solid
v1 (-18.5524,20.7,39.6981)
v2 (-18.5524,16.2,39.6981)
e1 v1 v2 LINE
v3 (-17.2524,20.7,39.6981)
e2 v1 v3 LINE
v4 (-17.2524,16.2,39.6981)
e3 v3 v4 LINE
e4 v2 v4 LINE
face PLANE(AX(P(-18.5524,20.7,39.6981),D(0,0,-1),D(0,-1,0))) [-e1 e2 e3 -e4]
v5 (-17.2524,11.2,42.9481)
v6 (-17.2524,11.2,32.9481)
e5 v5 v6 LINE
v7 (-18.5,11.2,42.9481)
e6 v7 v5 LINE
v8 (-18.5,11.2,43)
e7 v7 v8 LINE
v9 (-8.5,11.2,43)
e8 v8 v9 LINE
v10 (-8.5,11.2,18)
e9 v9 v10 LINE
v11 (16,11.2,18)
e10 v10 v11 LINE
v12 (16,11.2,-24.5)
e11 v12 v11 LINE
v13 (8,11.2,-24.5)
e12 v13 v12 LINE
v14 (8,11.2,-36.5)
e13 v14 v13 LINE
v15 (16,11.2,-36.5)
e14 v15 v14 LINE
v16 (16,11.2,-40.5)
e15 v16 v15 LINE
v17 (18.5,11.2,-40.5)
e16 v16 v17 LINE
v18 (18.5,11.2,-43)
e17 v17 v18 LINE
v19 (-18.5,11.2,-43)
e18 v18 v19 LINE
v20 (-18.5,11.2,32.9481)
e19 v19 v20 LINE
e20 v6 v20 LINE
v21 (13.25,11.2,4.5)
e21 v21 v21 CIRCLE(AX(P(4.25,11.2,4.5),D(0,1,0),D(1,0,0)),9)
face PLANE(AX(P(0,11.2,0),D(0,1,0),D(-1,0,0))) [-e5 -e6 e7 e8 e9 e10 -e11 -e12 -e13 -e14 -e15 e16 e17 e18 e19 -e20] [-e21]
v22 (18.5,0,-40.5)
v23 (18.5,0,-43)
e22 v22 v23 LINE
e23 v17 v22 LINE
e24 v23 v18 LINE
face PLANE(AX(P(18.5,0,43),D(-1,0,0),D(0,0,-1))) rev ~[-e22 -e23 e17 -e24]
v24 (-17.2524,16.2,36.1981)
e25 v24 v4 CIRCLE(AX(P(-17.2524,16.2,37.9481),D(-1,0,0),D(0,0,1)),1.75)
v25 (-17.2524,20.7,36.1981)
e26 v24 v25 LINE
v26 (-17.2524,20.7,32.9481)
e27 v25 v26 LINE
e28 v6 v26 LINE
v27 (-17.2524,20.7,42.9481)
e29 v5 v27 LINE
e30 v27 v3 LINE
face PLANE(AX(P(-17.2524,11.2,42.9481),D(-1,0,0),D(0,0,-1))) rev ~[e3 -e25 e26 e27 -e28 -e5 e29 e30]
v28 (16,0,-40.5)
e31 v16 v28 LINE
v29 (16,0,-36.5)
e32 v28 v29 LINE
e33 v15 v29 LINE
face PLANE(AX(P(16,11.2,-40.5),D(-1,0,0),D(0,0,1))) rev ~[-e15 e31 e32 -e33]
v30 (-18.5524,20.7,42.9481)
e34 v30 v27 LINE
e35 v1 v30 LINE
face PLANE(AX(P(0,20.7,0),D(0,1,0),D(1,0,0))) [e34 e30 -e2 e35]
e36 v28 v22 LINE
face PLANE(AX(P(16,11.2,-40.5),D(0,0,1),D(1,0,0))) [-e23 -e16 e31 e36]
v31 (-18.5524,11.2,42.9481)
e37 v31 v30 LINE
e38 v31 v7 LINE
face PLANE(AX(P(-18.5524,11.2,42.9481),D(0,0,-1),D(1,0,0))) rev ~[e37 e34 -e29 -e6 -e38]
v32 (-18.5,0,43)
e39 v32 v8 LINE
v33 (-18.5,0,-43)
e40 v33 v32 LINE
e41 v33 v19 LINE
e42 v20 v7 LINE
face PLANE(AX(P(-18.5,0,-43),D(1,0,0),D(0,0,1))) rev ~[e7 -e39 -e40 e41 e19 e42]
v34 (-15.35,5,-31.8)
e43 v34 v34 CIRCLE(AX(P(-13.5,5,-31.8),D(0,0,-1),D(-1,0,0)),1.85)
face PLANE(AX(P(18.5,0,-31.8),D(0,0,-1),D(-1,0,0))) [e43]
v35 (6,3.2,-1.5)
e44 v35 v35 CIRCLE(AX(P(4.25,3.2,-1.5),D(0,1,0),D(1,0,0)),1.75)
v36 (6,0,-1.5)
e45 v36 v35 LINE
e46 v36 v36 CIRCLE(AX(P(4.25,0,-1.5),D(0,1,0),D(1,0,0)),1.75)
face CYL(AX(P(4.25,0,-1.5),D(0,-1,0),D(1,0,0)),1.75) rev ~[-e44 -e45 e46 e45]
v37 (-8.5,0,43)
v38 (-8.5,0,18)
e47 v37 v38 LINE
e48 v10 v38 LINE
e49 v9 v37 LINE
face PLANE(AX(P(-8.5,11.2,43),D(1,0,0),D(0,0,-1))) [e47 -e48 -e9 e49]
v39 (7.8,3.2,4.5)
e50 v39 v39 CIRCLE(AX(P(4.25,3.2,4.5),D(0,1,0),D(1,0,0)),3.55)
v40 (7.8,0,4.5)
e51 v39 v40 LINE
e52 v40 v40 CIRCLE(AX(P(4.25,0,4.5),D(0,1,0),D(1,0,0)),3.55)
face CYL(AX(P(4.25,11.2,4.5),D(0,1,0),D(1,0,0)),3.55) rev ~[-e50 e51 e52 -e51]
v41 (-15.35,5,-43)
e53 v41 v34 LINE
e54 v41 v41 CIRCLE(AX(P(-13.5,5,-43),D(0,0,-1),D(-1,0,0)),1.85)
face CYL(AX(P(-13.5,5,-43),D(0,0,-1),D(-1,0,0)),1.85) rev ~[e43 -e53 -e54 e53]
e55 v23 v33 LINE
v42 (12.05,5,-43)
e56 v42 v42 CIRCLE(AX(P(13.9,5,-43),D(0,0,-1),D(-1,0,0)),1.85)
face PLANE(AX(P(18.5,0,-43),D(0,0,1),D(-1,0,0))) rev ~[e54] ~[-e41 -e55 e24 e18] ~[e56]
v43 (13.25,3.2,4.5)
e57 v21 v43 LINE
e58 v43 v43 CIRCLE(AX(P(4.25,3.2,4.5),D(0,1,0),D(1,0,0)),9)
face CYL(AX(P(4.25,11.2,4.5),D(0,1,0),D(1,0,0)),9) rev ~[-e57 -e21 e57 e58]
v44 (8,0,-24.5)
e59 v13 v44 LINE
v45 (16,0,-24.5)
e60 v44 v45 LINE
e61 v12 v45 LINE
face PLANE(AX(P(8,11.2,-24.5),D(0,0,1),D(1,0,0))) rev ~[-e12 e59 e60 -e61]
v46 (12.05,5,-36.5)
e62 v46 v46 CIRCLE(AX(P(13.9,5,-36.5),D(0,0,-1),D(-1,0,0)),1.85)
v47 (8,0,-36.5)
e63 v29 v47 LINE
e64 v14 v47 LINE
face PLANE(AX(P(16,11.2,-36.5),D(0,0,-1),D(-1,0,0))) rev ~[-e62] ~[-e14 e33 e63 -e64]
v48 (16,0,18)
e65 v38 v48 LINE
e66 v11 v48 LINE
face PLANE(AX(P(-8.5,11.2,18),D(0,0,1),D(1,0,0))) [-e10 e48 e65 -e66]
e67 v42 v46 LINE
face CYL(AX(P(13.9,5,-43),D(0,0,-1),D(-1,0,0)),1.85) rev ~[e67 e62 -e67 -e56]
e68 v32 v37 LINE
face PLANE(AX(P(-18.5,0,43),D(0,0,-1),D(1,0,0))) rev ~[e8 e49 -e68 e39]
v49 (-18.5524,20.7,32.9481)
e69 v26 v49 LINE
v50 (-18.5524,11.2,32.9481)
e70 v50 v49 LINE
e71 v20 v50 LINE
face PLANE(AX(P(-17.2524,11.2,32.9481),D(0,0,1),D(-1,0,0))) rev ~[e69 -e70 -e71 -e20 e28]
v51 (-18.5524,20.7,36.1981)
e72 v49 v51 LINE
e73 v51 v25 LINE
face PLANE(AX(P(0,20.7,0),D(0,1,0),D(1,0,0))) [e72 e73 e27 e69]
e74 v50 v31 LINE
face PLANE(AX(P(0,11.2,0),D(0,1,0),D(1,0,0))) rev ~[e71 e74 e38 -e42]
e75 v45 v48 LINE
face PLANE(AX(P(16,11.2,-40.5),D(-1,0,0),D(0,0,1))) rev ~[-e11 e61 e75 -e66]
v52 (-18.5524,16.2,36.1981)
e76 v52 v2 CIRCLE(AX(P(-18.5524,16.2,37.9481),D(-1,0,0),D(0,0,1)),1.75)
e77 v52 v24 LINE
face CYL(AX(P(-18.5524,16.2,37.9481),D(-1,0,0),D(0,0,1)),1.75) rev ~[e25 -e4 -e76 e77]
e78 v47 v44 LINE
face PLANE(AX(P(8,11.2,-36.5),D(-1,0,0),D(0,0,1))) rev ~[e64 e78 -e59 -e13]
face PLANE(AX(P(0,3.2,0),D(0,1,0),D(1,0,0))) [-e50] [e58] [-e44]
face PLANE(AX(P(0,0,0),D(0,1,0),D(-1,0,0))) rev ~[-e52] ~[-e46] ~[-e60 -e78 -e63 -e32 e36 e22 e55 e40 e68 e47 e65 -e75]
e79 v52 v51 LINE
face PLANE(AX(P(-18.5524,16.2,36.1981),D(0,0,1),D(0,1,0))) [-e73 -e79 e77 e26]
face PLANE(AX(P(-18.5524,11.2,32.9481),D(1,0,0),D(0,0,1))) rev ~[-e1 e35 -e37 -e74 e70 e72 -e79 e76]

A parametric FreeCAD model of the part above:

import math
import FreeCAD as App
import Part
import Sketcher
Q = App.Units.Quantity


def add_polygon(sketch, points):
    """Adds a closed chain of lines whose ends are joined by coincident constraints."""
    first, n = sketch.GeometryCount, len(points)
    for a, b in zip(points, points[1:] + points[:1]):
        sketch.addGeometry(Part.LineSegment(App.Vector(*a, 0), App.Vector(*b, 0)), False)
    for i in range(n):
        sketch.addConstraint(Sketcher.Constraint("Coincident", first + i, 2, first + (i + 1) % n, 1))

doc = App.newDocument("Part")
body = doc.addObject("PartDesign::Body", "Body")

# Sketch on XZ plane
sketch1 = body.newObject("Sketcher::SketchObject", "Sketch")
sketch1.AttachmentSupport = (doc.getObject("XZ_Plane"), [""])
sketch1.MapMode = "FlatFace"
add_polygon(sketch1, [(-18, -43), (-18, 43), (18, 43), (18, -43)])  # lines 0-3
sketch1.addConstraint([
    Sketcher.Constraint("Vertical", 0),
    Sketcher.Constraint("Horizontal", 1),
    Sketcher.Constraint("Vertical", 2),
    Sketcher.Constraint("Horizontal", 3),
    Sketcher.Constraint("Symmetric", 0, 2, 2, 2, -1, 1),
    Sketcher.Constraint("DistanceX", 1, 1, 1, 2, Q("37 mm")),
    Sketcher.Constraint("DistanceY", 0, 1, 0, 2, Q("86 mm")),
])
pad1 = body.newObject("PartDesign::Pad", "Pad")
pad1.Profile = sketch1
pad1.Length = 11.2
pad1.Reversed = True

# Sketch on XY plane
sketch2 = body.newObject("Sketcher::SketchObject", "Sketch001")
sketch2.AttachmentSupport = (doc.getObject("XY_Plane"), [""])
sketch2.MapMode = "FlatFace"
sketch2.AttachmentOffset = App.Placement(App.Vector(0, 0, -43), App.Rotation())
sketch2.addGeometry([
    Part.Circle(App.Vector(-13.5, 5, 0), App.Vector(0, 0, 1), 1.9),
    Part.Circle(App.Vector(13.9, 5, 0), App.Vector(0, 0, 1), 1.9),
], False)
sketch2.addConstraint([
    Sketcher.Constraint("Equal", 0, 1),
    Sketcher.Constraint("Horizontal", 0, 3, 1, 3),
    Sketcher.Constraint("Diameter", 0, Q("3.7 mm")),
    Sketcher.Constraint("DistanceY", -1, 1, 0, 3, Q("5 mm")),
    Sketcher.Constraint("DistanceX", 0, 3, -1, 1, Q("13.5 mm")),
    Sketcher.Constraint("DistanceX", -1, 1, 1, 3, Q("13.9 mm")),
])
pocket1 = body.newObject("PartDesign::Pocket", "Pocket")
pocket1.Profile = sketch2
pocket1.Length = 11.2
pocket1.Reversed = True

# Sketch on XZ plane
sketch3 = body.newObject("Sketcher::SketchObject", "Sketch002")
sketch3.AttachmentSupport = (doc.getObject("XZ_Plane"), [""])
sketch3.MapMode = "FlatFace"
sketch3.AttachmentOffset = App.Placement(App.Vector(0, 0, -11.2), App.Rotation())
add_polygon(sketch3, [(16, -40.5), (16, 43), (18.5, 43), (18.5, -40.5)])  # lines 0-3
sketch3.addConstraint([
    Sketcher.Constraint("Vertical", 0),
    Sketcher.Constraint("Horizontal", 1),
    Sketcher.Constraint("Vertical", 2),
    Sketcher.Constraint("Horizontal", 3),
    Sketcher.Constraint("DistanceX", 1, 1, 1, 2, Q("2.5 mm")),
    Sketcher.Constraint("DistanceY", 0, 1, 0, 2, Q("83.5 mm")),
    Sketcher.Constraint("DistanceX", -1, 1, 0, 2, Q("16 mm")),
    Sketcher.Constraint("DistanceY", -1, 1, 0, 2, Q("43 mm")),
])
pocket2 = body.newObject("PartDesign::Pocket", "Pocket001")
pocket2.Profile = sketch3
pocket2.Length = 11.2
pocket2.Reversed = True

# Sketch on XZ plane
sketch4 = body.newObject("Sketcher::SketchObject", "Sketch003")
sketch4.AttachmentSupport = (doc.getObject("XZ_Plane"), [""])
sketch4.MapMode = "FlatFace"
sketch4.AttachmentOffset = App.Placement(App.Vector(0, 0, -11.2), App.Rotation())
add_polygon(sketch4, [(16, 43), (16, 18), (-8, 18), (-8, 43)])  # lines 0-3
sketch4.addConstraint([
    Sketcher.Constraint("Vertical", 0),
    Sketcher.Constraint("Horizontal", 1),
    Sketcher.Constraint("Vertical", 2),
    Sketcher.Constraint("Horizontal", 3),
    Sketcher.Constraint("DistanceY", 0, 2, 0, 1, Q("25 mm")),
    Sketcher.Constraint("DistanceX", 1, 2, 1, 1, Q("24.5 mm")),
    Sketcher.Constraint("DistanceX", -1, 1, 0, 2, Q("16 mm")),
    Sketcher.Constraint("DistanceY", -1, 1, 0, 2, Q("18 mm")),
])
pocket3 = body.newObject("PartDesign::Pocket", "Pocket002")
pocket3.Profile = sketch4
pocket3.Length = 11.2
pocket3.Reversed = True

# Sketch on XZ plane
sketch5 = body.newObject("Sketcher::SketchObject", "Sketch004")
sketch5.AttachmentSupport = (doc.getObject("XZ_Plane"), [""])
sketch5.MapMode = "FlatFace"
sketch5.AttachmentOffset = App.Placement(App.Vector(0, 0, -11.2), App.Rotation())
add_polygon(sketch5, [(-18.6, 32.9), (-18.6, 42.9), (-17.3, 42.9), (-17.3, 32.9)])  # lines 0-3
sketch5.addConstraint([
    Sketcher.Constraint("Vertical", 0),
    Sketcher.Constraint("Horizontal", 1),
    Sketcher.Constraint("Vertical", 2),
    Sketcher.Constraint("Horizontal", 3),
    Sketcher.Constraint("DistanceY", 0, 1, 0, 2, Q("10 mm")),
    Sketcher.Constraint("DistanceX", 1, 1, 1, 2, Q("1.3 mm")),
    Sketcher.Constraint("DistanceY", -1, 1, 0, 2, Q("42.948 mm")),
    Sketcher.Constraint("DistanceX", 0, 2, -1, 1, Q("18.5524 mm")),
])
pad2 = body.newObject("PartDesign::Pad", "Pad001")
pad2.Profile = sketch5
pad2.Length = 9.5
pad2.Reversed = True

# Sketch on YZ plane
sketch6 = body.newObject("Sketcher::SketchObject", "Sketch005")
sketch6.AttachmentSupport = (doc.getObject("YZ_Plane"), [""])
sketch6.MapMode = "FlatFace"
sketch6.AttachmentOffset = App.Placement(App.Vector(0, 0, -18.5524), App.Rotation())
sketch6.addGeometry([
    Part.ArcOfCircle(Part.Circle(App.Vector(16.2, 37.9, 0), App.Vector(0, 0, 1), 1.8), math.radians(90), math.radians(270)),
    Part.LineSegment(App.Vector(16.2, 39.7, 0), App.Vector(20.7, 39.7, 0)),
    Part.LineSegment(App.Vector(20.7, 39.7, 0), App.Vector(20.7, 36.2, 0)),
    Part.LineSegment(App.Vector(20.7, 36.2, 0), App.Vector(16.2, 36.2, 0)),
], False)
sketch6.addConstraint([
    Sketcher.Constraint("Tangent", 0, 1, 1, 1),
    Sketcher.Constraint("Coincident", 1, 2, 2, 1),
    Sketcher.Constraint("Coincident", 2, 2, 3, 1),
    Sketcher.Constraint("Tangent", 3, 2, 0, 2),
    Sketcher.Constraint("Horizontal", 1),
    Sketcher.Constraint("Vertical", 2),
    Sketcher.Constraint("Horizontal", 3),
    Sketcher.Constraint("Radius", 0, Q("1.75 mm")),
    Sketcher.Constraint("DistanceX", 1, 1, 1, 2, Q("4.5 mm")),
    Sketcher.Constraint("DistanceX", -1, 1, 0, 3, Q("16.2 mm")),
    Sketcher.Constraint("DistanceY", -1, 1, 0, 3, Q("37.948 mm")),
])
pocket4 = body.newObject("PartDesign::Pocket", "Pocket003")
pocket4.Profile = sketch6
pocket4.Length = 1.3
pocket4.Reversed = True

# Sketch on XZ plane
sketch7 = body.newObject("Sketcher::SketchObject", "Sketch006")
sketch7.AttachmentSupport = (doc.getObject("XZ_Plane"), [""])
sketch7.MapMode = "FlatFace"
sketch7.AttachmentOffset = App.Placement(App.Vector(0, 0, -11.2), App.Rotation())
sketch7.addGeometry(Part.Circle(App.Vector(4.2, 4.5, 0), App.Vector(0, 0, 1), 3.5), False)
sketch7.addConstraint([
    Sketcher.Constraint("Diameter", 0, Q("7.1 mm")),
    Sketcher.Constraint("DistanceY", -1, 1, 0, 3, Q("4.5 mm")),
    Sketcher.Constraint("DistanceX", -1, 1, 0, 3, Q("4.25 mm")),
])
pocket5 = body.newObject("PartDesign::Pocket", "Pocket004")
pocket5.Profile = sketch7
pocket5.Length = 11.2
pocket5.Reversed = True

# Sketch on XZ plane
sketch8 = body.newObject("Sketcher::SketchObject", "Sketch007")
sketch8.AttachmentSupport = (doc.getObject("XZ_Plane"), [""])
sketch8.MapMode = "FlatFace"
sketch8.AttachmentOffset = App.Placement(App.Vector(0, 0, -11.2), App.Rotation())
sketch8.addGeometry(Part.Circle(App.Vector(4, 4, 0), App.Vector(0, 0, 1), 9), False)
sketch8.addConstraint([
    Sketcher.Constraint("Diameter", 0, Q("18 mm")),
    Sketcher.Constraint("DistanceY", -1, 1, 0, 3, Q("4.5 mm")),
    Sketcher.Constraint("DistanceX", -1, 1, 0, 3, Q("4.25 mm")),
])
pocket6 = body.newObject("PartDesign::Pocket", "Pocket005")
pocket6.Profile = sketch8
pocket6.Length = 8
pocket6.Reversed = True

# Sketch on XZ plane
sketch9 = body.newObject("Sketcher::SketchObject", "Sketch008")
sketch9.AttachmentSupport = (doc.getObject("XZ_Plane"), [""])
sketch9.MapMode = "FlatFace"
sketch9.AttachmentOffset = App.Placement(App.Vector(0, 0, -11.2), App.Rotation())
add_polygon(sketch9, [(8, -24), (16, -24), (16, -36), (8, -36)])  # lines 0-3
sketch9.addConstraint([
    Sketcher.Constraint("Horizontal", 0),
    Sketcher.Constraint("Vertical", 1),
    Sketcher.Constraint("Horizontal", 2),
    Sketcher.Constraint("Vertical", 3),
    Sketcher.Constraint("DistanceX", 0, 1, 0, 2, Q("8 mm")),
    Sketcher.Constraint("DistanceY", 1, 2, 1, 1, Q("12 mm")),
    Sketcher.Constraint("DistanceX", -1, 1, 2, 2, Q("8 mm")),
    Sketcher.Constraint("DistanceY", 0, 2, -1, 1, Q("24.5 mm")),
])
pocket7 = body.newObject("PartDesign::Pocket", "Pocket006")
pocket7.Profile = sketch9
pocket7.Length = 11.2
pocket7.Reversed = True

# Sketch on XZ plane
sketch10 = body.newObject("Sketcher::SketchObject", "Sketch009")
sketch10.AttachmentSupport = (doc.getObject("XZ_Plane"), [""])
sketch10.MapMode = "FlatFace"
sketch10.addGeometry(Part.Circle(App.Vector(4.2, -1.5, 0), App.Vector(0, 0, 1), 1.8), False)
sketch10.addConstraint([
    Sketcher.Constraint("Diameter", 0, Q("3.5 mm")),
    Sketcher.Constraint("DistanceY", 0, 3, -1, 1, Q("1.5 mm")),
    Sketcher.Constraint("DistanceX", -1, 1, 0, 3, Q("4.25 mm")),
])
pocket8 = body.newObject("PartDesign::Pocket", "Pocket007")
pocket8.Profile = sketch10
pocket8.Length = 3.2

doc.recompute()
